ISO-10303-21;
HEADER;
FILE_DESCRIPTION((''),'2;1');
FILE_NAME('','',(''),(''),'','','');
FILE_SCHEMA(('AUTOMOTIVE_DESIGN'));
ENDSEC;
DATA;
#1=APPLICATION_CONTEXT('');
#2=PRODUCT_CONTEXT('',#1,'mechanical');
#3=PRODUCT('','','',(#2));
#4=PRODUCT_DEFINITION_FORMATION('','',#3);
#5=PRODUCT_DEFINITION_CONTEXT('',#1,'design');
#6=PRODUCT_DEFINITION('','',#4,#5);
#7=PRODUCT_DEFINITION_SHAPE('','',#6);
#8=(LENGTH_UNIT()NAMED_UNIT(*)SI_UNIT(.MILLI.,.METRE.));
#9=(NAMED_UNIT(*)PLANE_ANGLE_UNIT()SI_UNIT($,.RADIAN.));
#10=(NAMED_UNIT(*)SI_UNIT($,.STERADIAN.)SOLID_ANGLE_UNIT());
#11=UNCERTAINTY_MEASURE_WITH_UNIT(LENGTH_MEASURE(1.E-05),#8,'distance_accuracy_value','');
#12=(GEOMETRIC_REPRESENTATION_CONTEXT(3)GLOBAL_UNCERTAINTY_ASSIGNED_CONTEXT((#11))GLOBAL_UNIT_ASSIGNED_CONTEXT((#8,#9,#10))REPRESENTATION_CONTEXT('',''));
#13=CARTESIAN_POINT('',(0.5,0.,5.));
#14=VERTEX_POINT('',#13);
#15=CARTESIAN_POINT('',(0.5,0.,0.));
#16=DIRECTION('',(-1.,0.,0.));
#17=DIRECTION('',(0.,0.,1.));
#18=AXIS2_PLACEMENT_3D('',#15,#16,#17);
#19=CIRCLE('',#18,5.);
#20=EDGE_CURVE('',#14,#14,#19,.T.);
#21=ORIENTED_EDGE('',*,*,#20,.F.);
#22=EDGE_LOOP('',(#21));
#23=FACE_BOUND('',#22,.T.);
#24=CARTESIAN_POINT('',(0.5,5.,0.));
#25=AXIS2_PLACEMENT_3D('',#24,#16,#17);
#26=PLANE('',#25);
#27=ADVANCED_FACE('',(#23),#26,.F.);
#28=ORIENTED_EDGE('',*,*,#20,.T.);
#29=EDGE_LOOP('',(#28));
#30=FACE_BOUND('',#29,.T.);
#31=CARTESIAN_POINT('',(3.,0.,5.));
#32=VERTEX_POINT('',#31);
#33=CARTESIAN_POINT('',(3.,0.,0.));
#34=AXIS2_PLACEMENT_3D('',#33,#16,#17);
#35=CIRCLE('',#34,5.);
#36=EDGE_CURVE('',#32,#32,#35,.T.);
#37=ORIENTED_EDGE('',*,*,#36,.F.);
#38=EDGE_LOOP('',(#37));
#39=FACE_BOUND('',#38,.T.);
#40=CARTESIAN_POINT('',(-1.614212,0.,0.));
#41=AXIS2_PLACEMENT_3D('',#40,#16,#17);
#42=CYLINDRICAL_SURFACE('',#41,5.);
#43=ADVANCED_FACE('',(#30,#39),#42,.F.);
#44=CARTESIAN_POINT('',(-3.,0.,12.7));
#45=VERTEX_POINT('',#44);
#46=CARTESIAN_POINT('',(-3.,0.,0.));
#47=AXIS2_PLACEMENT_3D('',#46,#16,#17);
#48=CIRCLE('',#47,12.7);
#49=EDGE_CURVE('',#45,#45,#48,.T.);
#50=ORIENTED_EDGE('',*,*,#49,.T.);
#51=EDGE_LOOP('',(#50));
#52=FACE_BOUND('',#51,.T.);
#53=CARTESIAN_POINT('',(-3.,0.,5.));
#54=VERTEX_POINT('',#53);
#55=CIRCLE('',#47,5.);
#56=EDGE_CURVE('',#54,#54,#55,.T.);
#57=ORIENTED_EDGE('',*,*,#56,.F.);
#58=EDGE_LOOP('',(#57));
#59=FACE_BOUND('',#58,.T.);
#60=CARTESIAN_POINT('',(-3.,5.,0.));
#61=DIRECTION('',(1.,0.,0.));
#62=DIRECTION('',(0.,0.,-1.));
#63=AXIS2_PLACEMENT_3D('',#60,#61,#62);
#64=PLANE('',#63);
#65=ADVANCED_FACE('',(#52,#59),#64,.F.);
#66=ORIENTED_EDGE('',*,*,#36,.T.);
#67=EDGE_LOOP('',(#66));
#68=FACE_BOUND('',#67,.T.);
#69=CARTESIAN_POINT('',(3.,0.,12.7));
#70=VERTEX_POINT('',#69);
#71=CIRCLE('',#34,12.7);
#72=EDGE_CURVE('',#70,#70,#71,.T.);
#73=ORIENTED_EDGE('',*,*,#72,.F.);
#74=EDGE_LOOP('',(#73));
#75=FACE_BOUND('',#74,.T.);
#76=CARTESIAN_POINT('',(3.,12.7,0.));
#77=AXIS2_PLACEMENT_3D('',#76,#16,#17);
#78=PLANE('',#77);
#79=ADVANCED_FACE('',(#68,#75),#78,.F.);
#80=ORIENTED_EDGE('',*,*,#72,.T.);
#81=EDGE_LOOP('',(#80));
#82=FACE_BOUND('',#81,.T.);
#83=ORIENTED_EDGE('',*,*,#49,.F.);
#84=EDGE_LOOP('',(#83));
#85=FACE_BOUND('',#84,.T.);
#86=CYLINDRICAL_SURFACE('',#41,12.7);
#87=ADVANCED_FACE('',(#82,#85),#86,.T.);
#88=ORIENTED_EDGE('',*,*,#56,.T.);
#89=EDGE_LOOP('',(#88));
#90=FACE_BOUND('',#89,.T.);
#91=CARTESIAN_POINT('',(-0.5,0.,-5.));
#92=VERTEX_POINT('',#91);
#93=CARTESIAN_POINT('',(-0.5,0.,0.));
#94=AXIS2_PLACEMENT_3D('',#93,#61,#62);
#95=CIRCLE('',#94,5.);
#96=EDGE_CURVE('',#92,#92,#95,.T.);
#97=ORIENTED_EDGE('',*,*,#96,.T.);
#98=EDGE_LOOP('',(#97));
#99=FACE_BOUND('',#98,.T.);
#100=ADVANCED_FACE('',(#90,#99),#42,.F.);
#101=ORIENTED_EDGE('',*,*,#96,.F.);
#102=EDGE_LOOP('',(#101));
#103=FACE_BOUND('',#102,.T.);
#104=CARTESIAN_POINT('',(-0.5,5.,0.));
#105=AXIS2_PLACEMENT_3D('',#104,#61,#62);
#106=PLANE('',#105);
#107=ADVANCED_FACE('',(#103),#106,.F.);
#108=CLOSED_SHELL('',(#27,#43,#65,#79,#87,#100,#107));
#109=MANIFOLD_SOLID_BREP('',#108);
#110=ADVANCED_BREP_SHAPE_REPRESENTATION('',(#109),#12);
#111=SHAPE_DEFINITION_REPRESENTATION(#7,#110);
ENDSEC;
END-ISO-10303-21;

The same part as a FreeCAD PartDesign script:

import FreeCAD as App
import Part
import Sketcher

doc = App.newDocument("Part")
body = doc.addObject("PartDesign::Body", "Body")

# Sketch on XY plane
sketch1 = doc.addObject("Sketcher::SketchObject", "Sketch")
body.addObject(sketch1)
sketch1.AttachmentSupport = (doc.XY_Plane, [""])
sketch1.MapMode = "FlatFace"
sketch1.addGeometry([
    Part.LineSegment(App.Vector(-0.5, 5, 0), App.Vector(-0.5, 0, 0)),
    Part.LineSegment(App.Vector(-0.5, 0, 0), App.Vector(0.5, 0, 0)),
    Part.LineSegment(App.Vector(0.5, 0, 0), App.Vector(0.5, 5, 0)),
    Part.LineSegment(App.Vector(0.5, 5, 0), App.Vector(-0.5, 5, 0)),
], False)
sketch1.addConstraint([
    Sketcher.Constraint("Coincident", 0, 2, 1, 1),
    Sketcher.Constraint("Coincident", 1, 2, 2, 1),
    Sketcher.Constraint("Coincident", 2, 2, 3, 1),
    Sketcher.Constraint("Coincident", 3, 2, 0, 1),
    Sketcher.Constraint("Vertical", 0),
    Sketcher.Constraint("Horizontal", 1),
    Sketcher.Constraint("Vertical", 2),
    Sketcher.Constraint("Horizontal", 3),
    Sketcher.Constraint("Symmetric", 0, 2, 1, 2, -1, 1),
    Sketcher.Constraint("DistanceX", 1, 1, 1, 2, 1.0),
    Sketcher.Constraint("DistanceY", 0, 2, 0, 1, 5.0),
])
revolution = doc.addObject("PartDesign::Revolution", "Revolution")
body.addObject(revolution)
revolution.Profile = sketch1
revolution.ReferenceAxis = (sketch1, ["H_Axis"])
revolution.Angle = 360

# Sketch on XY plane
sketch2 = doc.addObject("Sketcher::SketchObject", "Sketch001")
body.addObject(sketch2)
sketch2.AttachmentSupport = (doc.XY_Plane, [""])
sketch2.MapMode = "FlatFace"
sketch2.addGeometry([
    Part.LineSegment(App.Vector(-3, 13, 0), App.Vector(-3, 5, 0)),
    Part.LineSegment(App.Vector(-3, 5, 0), App.Vector(3, 5, 0)),
    Part.LineSegment(App.Vector(3, 5, 0), App.Vector(3, 13, 0)),
    Part.LineSegment(App.Vector(3, 13, 0), App.Vector(-3, 13, 0)),
], False)
sketch2.addConstraint([
    Sketcher.Constraint("Coincident", 0, 2, 1, 1),
    Sketcher.Constraint("Coincident", 1, 2, 2, 1),
    Sketcher.Constraint("Coincident", 2, 2, 3, 1),
    Sketcher.Constraint("Coincident", 3, 2, 0, 1),
    Sketcher.Constraint("Vertical", 0),
    Sketcher.Constraint("Horizontal", 1),
    Sketcher.Constraint("Vertical", 2),
    Sketcher.Constraint("Horizontal", 3),
    Sketcher.Constraint("DistanceX", 1, 1, 1, 2, 6.0),
    Sketcher.Constraint("DistanceY", 0, 2, 0, 1, 7.7),
    Sketcher.Constraint("DistanceX", 0, 2, -1, 1, 3.0),
    Sketcher.Constraint("DistanceY", -1, 1, 0, 2, 5.0),
])
revolution2 = doc.addObject("PartDesign::Revolution", "Revolution001")
body.addObject(revolution2)
revolution2.Profile = sketch2
revolution2.ReferenceAxis = (sketch2, ["H_Axis"])
revolution2.Angle = 360

doc.recompute()
